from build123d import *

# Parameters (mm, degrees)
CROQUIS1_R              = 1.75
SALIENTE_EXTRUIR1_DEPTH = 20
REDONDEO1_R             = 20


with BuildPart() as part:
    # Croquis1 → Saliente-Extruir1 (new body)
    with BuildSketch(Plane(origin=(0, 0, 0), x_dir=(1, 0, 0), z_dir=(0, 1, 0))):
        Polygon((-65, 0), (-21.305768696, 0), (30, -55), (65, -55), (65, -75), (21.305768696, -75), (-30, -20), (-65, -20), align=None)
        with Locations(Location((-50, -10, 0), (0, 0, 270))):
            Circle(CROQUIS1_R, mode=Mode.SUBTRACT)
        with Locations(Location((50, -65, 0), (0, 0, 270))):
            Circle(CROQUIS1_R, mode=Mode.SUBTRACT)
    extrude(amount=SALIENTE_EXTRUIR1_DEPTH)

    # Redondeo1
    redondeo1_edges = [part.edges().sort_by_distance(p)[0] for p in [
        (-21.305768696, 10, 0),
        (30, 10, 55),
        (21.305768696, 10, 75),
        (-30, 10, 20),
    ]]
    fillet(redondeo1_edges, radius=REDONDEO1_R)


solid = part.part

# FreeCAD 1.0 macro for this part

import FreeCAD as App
import Part
import Sketcher


def edges_at(feature, points):
    """Names of the edges that pass closest to the given points."""
    edges = feature.Shape.Edges
    near = lambda p: min(range(len(edges)), key=lambda i: edges[i].distToShape(Part.Vertex(*p))[0])
    return sorted({f"Edge{near(p) + 1}" for p in points})


def add_polygon(sketch, points):
    """Adds a closed chain of lines whose ends are joined by coincident constraints."""
    first, n = sketch.GeometryCount, len(points)
    for a, b in zip(points, points[1:] + points[:1]):
        sketch.addGeometry(Part.LineSegment(App.Vector(*a, 0), App.Vector(*b, 0)), False)
    for i in range(n):
        sketch.addConstraint(Sketcher.Constraint("Coincident", first + i, 2, first + (i + 1) % n, 1))

doc = App.newDocument("Part")
body = doc.addObject("PartDesign::Body", "Body")

# Sketch on XZ plane
sketch1 = body.newObject("Sketcher::SketchObject", "Sketch")
sketch1.AttachmentSupport = (doc.getObject("XZ_Plane"), [""])
sketch1.MapMode = "FlatFace"
add_polygon(sketch1, [(-21.3, 0), (-65, 0), (-65, 20), (-30, 20), (21.3, 75), (65, 75), (65, 55), (30, 55)])  # lines 0-7
sketch1.addGeometry(Part.Circle(App.Vector(50, 65, 0), App.Vector(0, 0, 1), 1.8), False)  # 8
sketch1.addGeometry(Part.Circle(App.Vector(-50, 10, 0), App.Vector(0, 0, 1), 1.8), False)  # 9
sketch1.addConstraint([
    Sketcher.Constraint("Horizontal", 0),
    Sketcher.Constraint("Vertical", 1),
    Sketcher.Constraint("Horizontal", 2),
    Sketcher.Constraint("Horizontal", 4),
    Sketcher.Constraint("Vertical", 5),
    Sketcher.Constraint("Horizontal", 6),
    Sketcher.Constraint("Equal", 8, 9),
    Sketcher.Constraint("PointOnObject", 0, 2, -1),
    Sketcher.Constraint("Parallel", 3, 7),
    Sketcher.Constraint("Equal", 0, 4),
    Sketcher.Constraint("Equal", 2, 6),
    Sketcher.Constraint("Diameter", 8, 3.5),
    Sketcher.Constraint("DistanceX", 2, 1, 2, 2, 35.0),
    Sketcher.Constraint("DistanceY", 1, 1, 1, 2, 20.0),
    Sketcher.Constraint("DistanceX", -1, 1, 8, 3, 50.0),
    Sketcher.Constraint("DistanceY", -1, 1, 8, 3, 65.0),
    Sketcher.Constraint("DistanceX", 9, 3, -1, 1, 50.0),
    Sketcher.Constraint("DistanceY", -1, 1, 9, 3, 10.0),
    Sketcher.Constraint("DistanceX", 0, 2, -1, 1, 65.0),
    Sketcher.Constraint("DistanceY", -1, 1, 3, 2, 75.0),
    Sketcher.Constraint("DistanceX", -1, 1, 4, 2, 65.0),
    Sketcher.Constraint("DistanceX", 0, 2, 0, 1, 43.694231),
])
pad1 = body.newObject("PartDesign::Pad", "Pad")
pad1.Profile = sketch1
pad1.Length = 20
pad1.Reversed = True
doc.recompute()

fillet = body.newObject("PartDesign::Fillet", "Fillet")
fillet.Base = (pad1, edges_at(pad1, [
    (-21.306, 10, 0),
    (30, 10, 55),
    (21.306, 10, 75),
    (-30, 10, 20),
]))
fillet.Radius = 20

doc.recompute()
